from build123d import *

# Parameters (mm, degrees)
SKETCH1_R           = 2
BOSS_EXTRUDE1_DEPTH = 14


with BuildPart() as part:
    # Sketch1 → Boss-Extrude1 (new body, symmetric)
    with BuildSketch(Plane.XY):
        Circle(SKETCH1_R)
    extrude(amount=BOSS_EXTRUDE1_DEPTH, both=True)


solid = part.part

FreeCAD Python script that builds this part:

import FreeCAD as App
import Part
import Sketcher
from FreeCAD import Vector
Q = App.Units.Quantity

doc = App.newDocument("Part")
params = doc.addObject("Spreadsheet::Sheet", "Params")
for row, (alias, value) in enumerate([
    ("sketch1_diameter", "4 mm"),
    ("pad1_length", "28 mm"),
], start=1):
    params.set(f"A{row}", alias)
    params.set(f"B{row}", "=" + value)
    params.setAlias(f"B{row}", alias)

body = doc.addObject("PartDesign::Body", "Body")

# Sketch on XY plane
sketch1 = body.newObject("Sketcher::SketchObject", "Sketch")
sketch1.AttachmentSupport = (doc.getObject("XY_Plane"), [""])
sketch1.MapMode = "FlatFace"
sketch1.addGeometry(Part.Circle(Vector(0, 0, 0), Vector(0, 0, 1), 2), False)
sketch1.addConstraint([
    Sketcher.Constraint("Coincident", 0, 3, -1, 1),
    Sketcher.Constraint("Diameter", 0, Q("4 mm")),
])
sketch1.setExpression("Constraints[1]", "Params.sketch1_diameter")
pad1 = body.newObject("PartDesign::Pad", "Pad")
pad1.Profile = sketch1
pad1.setExpression("Length", "Params.pad1_length")
pad1.Midplane = True

doc.recompute()
